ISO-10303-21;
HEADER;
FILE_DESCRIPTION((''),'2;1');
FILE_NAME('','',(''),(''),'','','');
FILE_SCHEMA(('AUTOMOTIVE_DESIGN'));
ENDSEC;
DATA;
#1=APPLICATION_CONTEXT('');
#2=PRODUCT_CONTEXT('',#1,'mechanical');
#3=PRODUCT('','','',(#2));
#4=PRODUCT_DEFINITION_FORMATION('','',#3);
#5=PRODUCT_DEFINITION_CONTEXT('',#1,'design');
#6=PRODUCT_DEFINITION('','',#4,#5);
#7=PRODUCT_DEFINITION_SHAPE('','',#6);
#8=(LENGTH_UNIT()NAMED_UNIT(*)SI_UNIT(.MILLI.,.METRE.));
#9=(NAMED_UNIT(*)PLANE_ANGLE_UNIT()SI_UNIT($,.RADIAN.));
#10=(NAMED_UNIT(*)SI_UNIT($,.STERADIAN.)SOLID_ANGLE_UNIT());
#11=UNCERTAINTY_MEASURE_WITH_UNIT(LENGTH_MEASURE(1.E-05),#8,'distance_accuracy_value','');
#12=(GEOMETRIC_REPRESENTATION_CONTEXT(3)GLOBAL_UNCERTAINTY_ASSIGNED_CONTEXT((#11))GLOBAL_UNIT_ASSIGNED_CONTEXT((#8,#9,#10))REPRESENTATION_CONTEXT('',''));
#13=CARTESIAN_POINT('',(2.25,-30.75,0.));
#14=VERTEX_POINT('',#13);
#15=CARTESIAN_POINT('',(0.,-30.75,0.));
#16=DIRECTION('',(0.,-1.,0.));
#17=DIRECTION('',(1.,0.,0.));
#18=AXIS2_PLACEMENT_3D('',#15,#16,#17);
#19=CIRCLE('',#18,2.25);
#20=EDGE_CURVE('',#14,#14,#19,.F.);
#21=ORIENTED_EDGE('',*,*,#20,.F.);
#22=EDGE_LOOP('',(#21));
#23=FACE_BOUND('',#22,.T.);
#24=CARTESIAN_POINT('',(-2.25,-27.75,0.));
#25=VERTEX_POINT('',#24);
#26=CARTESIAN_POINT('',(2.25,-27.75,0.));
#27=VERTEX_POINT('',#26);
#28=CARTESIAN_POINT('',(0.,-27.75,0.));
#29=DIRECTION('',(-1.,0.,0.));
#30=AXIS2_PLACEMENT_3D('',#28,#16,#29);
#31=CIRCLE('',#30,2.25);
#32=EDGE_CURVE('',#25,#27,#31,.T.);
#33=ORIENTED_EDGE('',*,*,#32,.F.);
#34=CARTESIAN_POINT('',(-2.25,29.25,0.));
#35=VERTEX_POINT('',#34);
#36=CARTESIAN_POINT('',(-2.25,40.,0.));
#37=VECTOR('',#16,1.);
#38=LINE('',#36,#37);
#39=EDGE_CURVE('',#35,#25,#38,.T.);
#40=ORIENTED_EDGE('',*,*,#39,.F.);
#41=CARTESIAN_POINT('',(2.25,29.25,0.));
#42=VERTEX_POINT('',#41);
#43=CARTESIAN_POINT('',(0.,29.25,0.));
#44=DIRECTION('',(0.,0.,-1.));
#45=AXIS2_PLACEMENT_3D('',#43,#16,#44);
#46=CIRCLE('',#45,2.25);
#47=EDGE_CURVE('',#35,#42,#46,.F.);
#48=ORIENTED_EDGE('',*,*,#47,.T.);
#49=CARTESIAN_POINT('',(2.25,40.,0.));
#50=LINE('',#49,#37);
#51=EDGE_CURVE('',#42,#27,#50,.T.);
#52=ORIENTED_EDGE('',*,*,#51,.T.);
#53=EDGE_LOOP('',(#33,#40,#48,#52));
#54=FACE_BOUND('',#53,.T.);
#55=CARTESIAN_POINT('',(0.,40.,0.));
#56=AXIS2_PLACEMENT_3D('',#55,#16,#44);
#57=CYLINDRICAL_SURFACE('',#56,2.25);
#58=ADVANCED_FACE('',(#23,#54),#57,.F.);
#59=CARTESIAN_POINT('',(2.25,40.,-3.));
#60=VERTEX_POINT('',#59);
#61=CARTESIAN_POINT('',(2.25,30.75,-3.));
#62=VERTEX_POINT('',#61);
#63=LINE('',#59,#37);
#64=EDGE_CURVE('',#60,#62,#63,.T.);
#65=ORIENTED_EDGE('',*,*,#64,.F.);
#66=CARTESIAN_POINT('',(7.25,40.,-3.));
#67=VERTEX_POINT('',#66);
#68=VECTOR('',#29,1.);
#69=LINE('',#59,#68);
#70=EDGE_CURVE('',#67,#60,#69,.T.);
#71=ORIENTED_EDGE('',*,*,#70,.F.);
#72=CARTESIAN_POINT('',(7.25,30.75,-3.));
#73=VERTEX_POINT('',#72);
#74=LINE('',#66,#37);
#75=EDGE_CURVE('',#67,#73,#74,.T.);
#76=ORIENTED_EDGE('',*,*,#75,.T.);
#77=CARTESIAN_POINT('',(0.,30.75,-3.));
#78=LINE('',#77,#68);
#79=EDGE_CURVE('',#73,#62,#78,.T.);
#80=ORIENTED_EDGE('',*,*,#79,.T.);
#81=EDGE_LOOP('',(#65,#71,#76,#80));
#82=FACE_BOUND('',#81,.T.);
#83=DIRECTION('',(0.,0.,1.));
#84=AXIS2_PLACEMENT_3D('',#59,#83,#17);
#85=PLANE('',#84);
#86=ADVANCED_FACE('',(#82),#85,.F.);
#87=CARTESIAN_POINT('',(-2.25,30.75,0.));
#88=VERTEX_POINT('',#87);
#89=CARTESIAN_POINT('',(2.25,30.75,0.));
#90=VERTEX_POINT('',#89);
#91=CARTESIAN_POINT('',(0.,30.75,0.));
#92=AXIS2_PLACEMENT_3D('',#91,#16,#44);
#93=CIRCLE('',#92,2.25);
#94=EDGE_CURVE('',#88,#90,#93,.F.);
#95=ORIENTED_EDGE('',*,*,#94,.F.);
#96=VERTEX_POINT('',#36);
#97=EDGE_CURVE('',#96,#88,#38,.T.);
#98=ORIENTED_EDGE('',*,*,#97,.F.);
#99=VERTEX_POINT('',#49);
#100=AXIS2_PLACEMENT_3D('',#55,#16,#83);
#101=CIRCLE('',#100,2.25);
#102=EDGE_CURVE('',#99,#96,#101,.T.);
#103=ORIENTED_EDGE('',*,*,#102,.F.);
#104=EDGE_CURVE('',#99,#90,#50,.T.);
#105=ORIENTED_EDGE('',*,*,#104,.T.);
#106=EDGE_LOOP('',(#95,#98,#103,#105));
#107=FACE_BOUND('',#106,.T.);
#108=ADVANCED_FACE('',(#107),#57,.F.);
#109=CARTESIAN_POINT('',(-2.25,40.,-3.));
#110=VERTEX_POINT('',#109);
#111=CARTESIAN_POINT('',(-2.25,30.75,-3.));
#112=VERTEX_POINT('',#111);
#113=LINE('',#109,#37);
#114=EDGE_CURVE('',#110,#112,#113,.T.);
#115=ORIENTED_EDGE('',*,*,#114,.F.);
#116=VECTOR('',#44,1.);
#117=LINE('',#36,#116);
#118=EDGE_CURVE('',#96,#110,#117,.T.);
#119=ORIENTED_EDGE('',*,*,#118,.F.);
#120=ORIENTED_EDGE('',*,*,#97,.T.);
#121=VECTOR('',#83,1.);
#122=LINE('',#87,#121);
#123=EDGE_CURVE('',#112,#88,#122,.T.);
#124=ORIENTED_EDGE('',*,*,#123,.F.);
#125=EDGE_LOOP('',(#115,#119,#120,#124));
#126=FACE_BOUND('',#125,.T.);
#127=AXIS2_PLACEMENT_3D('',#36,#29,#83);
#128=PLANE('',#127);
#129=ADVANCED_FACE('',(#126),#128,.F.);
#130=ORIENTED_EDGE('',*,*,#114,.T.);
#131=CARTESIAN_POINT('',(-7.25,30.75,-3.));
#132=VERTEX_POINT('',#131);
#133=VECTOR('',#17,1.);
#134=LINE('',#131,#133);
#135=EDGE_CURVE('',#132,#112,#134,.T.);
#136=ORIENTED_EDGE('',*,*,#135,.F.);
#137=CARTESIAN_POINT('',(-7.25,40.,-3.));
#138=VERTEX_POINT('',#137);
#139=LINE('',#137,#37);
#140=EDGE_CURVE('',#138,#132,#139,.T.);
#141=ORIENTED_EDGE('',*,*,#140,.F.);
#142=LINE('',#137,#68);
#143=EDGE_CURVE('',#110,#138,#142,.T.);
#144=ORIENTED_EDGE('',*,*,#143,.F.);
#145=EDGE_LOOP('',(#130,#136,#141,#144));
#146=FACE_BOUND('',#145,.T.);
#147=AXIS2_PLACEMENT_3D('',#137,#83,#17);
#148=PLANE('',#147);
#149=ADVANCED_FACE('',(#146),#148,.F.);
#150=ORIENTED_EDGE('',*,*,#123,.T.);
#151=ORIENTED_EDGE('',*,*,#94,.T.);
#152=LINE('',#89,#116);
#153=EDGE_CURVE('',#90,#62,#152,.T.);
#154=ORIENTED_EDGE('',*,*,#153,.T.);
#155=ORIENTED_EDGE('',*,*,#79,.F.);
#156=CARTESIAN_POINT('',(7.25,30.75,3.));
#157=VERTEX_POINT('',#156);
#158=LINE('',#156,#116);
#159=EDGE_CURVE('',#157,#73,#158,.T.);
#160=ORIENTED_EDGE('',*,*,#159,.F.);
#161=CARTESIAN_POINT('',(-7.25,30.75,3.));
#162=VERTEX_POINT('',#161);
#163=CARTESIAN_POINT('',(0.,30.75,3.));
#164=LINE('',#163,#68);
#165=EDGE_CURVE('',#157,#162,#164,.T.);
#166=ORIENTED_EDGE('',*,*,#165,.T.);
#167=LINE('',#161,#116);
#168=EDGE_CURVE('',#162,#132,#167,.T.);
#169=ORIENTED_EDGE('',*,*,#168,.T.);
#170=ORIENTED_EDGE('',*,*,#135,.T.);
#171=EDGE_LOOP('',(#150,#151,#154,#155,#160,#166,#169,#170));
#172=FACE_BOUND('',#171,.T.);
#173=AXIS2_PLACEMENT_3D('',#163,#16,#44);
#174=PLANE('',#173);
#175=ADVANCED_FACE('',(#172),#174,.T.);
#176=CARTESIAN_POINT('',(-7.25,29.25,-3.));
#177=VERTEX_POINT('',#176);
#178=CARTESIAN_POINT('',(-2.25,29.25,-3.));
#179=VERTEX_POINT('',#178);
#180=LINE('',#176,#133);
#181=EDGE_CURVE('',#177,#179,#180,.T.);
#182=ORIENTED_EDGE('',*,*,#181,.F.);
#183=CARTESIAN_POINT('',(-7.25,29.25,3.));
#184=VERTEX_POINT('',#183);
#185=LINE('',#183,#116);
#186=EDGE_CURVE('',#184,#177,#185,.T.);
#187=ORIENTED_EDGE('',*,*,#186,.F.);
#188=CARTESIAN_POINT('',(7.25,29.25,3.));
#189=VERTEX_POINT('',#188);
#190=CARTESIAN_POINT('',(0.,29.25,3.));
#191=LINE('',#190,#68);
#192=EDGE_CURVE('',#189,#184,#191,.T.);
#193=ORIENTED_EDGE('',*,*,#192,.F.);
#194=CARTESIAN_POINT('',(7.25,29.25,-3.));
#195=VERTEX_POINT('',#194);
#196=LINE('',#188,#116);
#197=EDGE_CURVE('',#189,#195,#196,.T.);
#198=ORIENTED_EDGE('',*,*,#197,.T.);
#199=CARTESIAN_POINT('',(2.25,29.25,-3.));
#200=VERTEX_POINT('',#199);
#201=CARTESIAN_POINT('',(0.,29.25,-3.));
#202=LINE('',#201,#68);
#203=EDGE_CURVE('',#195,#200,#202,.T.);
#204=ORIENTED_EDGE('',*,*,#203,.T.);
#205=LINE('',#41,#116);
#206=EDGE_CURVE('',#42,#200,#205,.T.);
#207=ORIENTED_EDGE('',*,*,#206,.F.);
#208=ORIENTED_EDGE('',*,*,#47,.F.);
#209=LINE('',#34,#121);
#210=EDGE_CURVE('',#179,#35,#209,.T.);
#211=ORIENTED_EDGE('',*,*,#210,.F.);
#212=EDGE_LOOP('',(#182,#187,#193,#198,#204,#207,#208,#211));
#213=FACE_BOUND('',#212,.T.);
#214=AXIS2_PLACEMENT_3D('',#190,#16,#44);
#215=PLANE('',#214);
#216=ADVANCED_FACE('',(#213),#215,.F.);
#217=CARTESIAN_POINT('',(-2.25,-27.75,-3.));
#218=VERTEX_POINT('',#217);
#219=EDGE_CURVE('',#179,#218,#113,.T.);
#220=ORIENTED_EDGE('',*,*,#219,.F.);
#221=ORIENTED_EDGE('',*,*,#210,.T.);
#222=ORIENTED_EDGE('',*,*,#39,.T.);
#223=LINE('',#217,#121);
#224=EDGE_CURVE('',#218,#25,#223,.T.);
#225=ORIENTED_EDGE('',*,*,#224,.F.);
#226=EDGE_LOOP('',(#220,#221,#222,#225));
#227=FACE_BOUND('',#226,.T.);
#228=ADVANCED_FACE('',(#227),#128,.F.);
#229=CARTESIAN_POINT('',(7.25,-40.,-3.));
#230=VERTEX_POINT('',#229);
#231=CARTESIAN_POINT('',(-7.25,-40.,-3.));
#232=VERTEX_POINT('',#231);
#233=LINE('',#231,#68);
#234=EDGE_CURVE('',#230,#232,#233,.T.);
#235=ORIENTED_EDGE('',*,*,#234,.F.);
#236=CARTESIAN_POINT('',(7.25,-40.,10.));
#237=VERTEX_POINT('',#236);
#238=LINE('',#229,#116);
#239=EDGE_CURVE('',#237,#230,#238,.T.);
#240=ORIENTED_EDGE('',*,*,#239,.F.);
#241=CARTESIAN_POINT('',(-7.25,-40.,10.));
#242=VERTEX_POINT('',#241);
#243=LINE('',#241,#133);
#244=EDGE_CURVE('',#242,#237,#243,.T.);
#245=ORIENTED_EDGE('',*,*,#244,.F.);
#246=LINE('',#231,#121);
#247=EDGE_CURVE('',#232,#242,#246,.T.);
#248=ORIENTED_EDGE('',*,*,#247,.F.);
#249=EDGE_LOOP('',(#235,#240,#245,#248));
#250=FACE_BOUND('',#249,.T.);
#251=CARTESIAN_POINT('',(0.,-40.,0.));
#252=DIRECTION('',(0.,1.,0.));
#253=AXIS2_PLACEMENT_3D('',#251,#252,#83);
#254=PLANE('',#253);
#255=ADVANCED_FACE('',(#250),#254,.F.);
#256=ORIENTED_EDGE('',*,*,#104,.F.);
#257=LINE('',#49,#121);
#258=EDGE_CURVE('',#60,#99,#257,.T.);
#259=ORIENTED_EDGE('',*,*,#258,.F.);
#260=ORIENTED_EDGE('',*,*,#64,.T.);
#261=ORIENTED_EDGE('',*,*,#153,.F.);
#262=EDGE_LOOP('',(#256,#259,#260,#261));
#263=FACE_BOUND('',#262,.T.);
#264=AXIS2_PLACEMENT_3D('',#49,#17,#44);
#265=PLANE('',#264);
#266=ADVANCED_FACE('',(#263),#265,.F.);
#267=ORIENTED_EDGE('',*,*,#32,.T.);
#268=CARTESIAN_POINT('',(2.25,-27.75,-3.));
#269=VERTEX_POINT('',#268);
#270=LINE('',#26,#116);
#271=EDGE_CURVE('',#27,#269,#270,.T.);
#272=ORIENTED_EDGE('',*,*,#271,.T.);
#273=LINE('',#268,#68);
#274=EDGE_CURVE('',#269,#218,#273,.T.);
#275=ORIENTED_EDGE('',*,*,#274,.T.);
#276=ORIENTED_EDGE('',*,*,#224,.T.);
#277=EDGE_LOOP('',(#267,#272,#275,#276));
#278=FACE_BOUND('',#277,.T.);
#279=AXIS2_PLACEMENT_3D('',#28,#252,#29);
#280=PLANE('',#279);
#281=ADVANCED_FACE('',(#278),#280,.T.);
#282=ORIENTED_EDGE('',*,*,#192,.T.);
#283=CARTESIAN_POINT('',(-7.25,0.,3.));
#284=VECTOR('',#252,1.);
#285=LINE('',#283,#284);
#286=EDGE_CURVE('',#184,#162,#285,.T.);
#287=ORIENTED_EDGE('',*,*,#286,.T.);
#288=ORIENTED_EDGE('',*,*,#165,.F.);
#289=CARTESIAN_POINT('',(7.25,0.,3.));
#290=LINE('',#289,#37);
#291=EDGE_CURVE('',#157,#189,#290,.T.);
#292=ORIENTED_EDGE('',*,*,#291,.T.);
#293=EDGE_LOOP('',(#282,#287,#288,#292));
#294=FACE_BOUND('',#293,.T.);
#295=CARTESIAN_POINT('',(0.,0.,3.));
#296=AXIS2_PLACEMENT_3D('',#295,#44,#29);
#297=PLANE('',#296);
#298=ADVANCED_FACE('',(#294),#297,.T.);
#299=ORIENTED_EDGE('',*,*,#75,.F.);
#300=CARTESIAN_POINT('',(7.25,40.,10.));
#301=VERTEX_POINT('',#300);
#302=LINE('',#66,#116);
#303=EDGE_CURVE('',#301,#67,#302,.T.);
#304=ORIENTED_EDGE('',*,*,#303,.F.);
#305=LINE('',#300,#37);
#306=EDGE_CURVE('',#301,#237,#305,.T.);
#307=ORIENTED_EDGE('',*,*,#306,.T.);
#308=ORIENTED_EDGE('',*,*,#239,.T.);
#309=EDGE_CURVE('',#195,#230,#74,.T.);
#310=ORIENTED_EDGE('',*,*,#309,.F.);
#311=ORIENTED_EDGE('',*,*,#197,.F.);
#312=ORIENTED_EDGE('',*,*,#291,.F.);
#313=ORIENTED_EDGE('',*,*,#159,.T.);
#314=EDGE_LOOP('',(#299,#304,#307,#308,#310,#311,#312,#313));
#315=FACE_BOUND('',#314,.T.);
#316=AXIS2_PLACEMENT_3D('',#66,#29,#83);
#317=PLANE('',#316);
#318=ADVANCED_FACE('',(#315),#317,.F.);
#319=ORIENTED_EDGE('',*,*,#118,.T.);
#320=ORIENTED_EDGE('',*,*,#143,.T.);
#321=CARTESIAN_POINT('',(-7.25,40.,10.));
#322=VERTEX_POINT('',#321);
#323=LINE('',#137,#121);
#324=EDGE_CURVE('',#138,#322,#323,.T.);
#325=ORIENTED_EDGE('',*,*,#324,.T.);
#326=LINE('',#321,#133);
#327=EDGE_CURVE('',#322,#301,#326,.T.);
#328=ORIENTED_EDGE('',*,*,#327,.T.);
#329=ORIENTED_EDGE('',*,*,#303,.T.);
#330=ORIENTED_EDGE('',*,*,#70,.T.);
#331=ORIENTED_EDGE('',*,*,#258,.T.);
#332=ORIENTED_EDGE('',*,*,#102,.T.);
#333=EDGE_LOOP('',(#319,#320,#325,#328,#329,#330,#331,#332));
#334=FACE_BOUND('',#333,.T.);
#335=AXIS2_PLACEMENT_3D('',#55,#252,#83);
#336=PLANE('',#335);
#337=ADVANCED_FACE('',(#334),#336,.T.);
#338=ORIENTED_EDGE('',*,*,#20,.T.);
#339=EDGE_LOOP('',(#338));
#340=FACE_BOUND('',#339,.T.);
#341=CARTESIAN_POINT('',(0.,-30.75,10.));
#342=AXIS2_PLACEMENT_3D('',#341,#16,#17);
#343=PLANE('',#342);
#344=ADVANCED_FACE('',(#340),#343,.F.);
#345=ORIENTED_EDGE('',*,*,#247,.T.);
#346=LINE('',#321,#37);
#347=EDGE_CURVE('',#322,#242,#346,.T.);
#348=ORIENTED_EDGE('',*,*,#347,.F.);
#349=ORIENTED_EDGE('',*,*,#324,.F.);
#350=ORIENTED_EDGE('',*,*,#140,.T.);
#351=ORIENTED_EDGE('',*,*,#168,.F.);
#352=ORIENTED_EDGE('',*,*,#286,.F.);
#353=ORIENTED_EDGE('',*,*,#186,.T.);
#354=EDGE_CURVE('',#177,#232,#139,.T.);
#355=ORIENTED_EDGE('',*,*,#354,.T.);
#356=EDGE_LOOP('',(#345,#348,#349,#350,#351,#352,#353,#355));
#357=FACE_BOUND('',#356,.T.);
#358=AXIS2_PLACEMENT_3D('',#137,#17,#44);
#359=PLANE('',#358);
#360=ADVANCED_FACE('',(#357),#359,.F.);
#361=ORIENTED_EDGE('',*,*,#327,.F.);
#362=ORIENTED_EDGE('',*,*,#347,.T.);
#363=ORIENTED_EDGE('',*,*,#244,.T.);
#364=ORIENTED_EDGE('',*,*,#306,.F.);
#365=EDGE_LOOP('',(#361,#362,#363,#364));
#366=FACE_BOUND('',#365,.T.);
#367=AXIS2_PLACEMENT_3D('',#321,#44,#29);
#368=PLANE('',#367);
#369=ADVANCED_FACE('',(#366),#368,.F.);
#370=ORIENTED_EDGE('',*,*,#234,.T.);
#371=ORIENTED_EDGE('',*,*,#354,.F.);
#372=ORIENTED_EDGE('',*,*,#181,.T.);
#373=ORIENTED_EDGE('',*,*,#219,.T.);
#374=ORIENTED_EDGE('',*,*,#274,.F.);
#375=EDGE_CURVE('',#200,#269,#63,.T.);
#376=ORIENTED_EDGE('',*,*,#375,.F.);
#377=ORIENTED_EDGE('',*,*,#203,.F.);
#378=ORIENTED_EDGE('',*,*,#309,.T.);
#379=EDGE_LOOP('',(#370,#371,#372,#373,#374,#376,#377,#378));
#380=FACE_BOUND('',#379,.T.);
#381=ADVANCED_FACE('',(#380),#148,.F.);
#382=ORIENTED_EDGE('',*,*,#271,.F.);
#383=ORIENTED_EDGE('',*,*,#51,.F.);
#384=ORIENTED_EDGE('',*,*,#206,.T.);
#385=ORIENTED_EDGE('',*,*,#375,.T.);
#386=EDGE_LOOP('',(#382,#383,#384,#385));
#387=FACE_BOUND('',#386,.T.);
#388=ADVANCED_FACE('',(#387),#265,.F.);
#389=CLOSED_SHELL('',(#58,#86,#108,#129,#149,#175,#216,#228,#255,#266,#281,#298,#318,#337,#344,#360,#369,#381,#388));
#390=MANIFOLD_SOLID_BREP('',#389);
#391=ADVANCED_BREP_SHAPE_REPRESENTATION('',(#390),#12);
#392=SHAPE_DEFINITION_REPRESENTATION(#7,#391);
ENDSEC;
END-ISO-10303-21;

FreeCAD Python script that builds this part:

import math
import FreeCAD as App
import Part
import Sketcher
from FreeCAD import Vector


def add_polygon(sketch, points):
    """Adds a closed chain of lines whose ends are joined by coincident constraints."""
    first, n = sketch.GeometryCount, len(points)
    for a, b in zip(points, points[1:] + points[:1]):
        sketch.addGeometry(Part.LineSegment(App.Vector(*a, 0), App.Vector(*b, 0)), False)
    for i in range(n):
        sketch.addConstraint(Sketcher.Constraint("Coincident", first + i, 2, first + (i + 1) % n, 1))

doc = App.newDocument("Part")
body = doc.addObject("PartDesign::Body", "Body")

sketch1 = body.newObject("Sketcher::SketchObject", "Sketch")
sketch1.AttachmentSupport = (doc.getObject("XZ_Plane"), [""])
sketch1.MapMode = "FlatFace"
sketch1.addGeometry([
    Part.LineSegment(Vector(-2.25, -3, 0), Vector(-7.25, -3, 0)),
    Part.LineSegment(Vector(-7.25, -3, 0), Vector(-7.25, 10, 0)),
    Part.LineSegment(Vector(-7.25, 10, 0), Vector(7.25, 10, 0)),
    Part.LineSegment(Vector(7.25, 10, 0), Vector(7.25, -3, 0)),
    Part.LineSegment(Vector(7.25, -3, 0), Vector(2.25, -3, 0)),
    Part.LineSegment(Vector(2.25, -3, 0), Vector(2.25, 0, 0)),
    Part.ArcOfCircle(Part.Circle(Vector(0, 0, 0), Vector(0, 0, 1), 2.25), math.radians(0), math.radians(180)),
    Part.LineSegment(Vector(-2.25, 0, 0), Vector(-2.25, -3, 0)),
], False)
sketch1.addConstraint([
    Sketcher.Constraint("Coincident", 0, 2, 1, 1),
    Sketcher.Constraint("Coincident", 1, 2, 2, 1),
    Sketcher.Constraint("Coincident", 2, 2, 3, 1),
    Sketcher.Constraint("Coincident", 3, 2, 4, 1),
    Sketcher.Constraint("Coincident", 4, 2, 5, 1),
    Sketcher.Constraint("Tangent", 5, 2, 6, 1),
    Sketcher.Constraint("Tangent", 6, 2, 7, 1),
    Sketcher.Constraint("Coincident", 7, 2, 0, 1),
    Sketcher.Constraint("Horizontal", 0),
    Sketcher.Constraint("Vertical", 1),
    Sketcher.Constraint("Horizontal", 2),
    Sketcher.Constraint("Vertical", 3),
    Sketcher.Constraint("Horizontal", 4),
    Sketcher.Constraint("Vertical", 5),
    Sketcher.Constraint("Vertical", 7),
    Sketcher.Constraint("Coincident", 6, 3, -1, 1),
    Sketcher.Constraint("Symmetric", 0, 2, 3, 2, -2),
    Sketcher.Constraint("DistanceX", 0, 2, 0, 1, 5.0),
    Sketcher.Constraint("DistanceY", 1, 1, 1, 2, 13.0),
    Sketcher.Constraint("DistanceY", 5, 1, 5, 2, 3.0),
    Sketcher.Constraint("Radius", 6, 2.25),
])
pad1 = body.newObject("PartDesign::Pad", "Pad")
pad1.Profile = sketch1
pad1.Length = 80
pad1.Midplane = True

sketch2 = body.newObject("Sketcher::SketchObject", "Sketch001")
sketch2.AttachmentSupport = (doc.getObject("XY_Plane"), [""])
sketch2.MapMode = "FlatFace"
sketch2.AttachmentOffset = App.Placement(Vector(0, 0, -3), App.Rotation())
add_polygon(sketch2, [(-7.25, 29.25), (-7.25, 30.75), (7.25, 30.75), (7.25, 29.25)])
sketch2.addConstraint([
    Sketcher.Constraint("Vertical", 0),
    Sketcher.Constraint("Horizontal", 1),
    Sketcher.Constraint("Vertical", 2),
    Sketcher.Constraint("Horizontal", 3),
    Sketcher.Constraint("DistanceX", 1, 1, 1, 2, 14.5),
    Sketcher.Constraint("DistanceY", 0, 1, 0, 2, 1.5),
    Sketcher.Constraint("DistanceX", 0, 2, -1, 1, 7.25),
    Sketcher.Constraint("DistanceY", -1, 1, 0, 2, 30.75),
])
pocket1 = body.newObject("PartDesign::Pocket", "Pocket")
pocket1.Profile = sketch2
pocket1.Length = 6
pocket1.Reversed = True

sketch3 = body.newObject("Sketcher::SketchObject", "Sketch002")
sketch3.AttachmentSupport = (doc.getObject("XY_Plane"), [""])
sketch3.MapMode = "FlatFace"
sketch3.AttachmentOffset = App.Placement(Vector(0, 0, -3), App.Rotation())
add_polygon(sketch3, [(-7.25, -40), (-7.25, -30.75), (7.25, -30.75), (7.25, -40)])
sketch3.addConstraint([
    Sketcher.Constraint("Vertical", 0),
    Sketcher.Constraint("Horizontal", 1),
    Sketcher.Constraint("Vertical", 2),
    Sketcher.Constraint("Horizontal", 3),
    Sketcher.Constraint("DistanceX", 1, 1, 1, 2, 14.5),
    Sketcher.Constraint("DistanceY", 2, 2, -1, 1, 40.0),
    Sketcher.Constraint("DistanceY", 0, 1, 0, 2, 9.25),
    Sketcher.Constraint("DistanceX", 0, 2, -1, 1, 7.25),
])
pad2 = body.newObject("PartDesign::Pad", "Pad001")
pad2.Profile = sketch3
pad2.Type = "UpToLast"

sketch4 = body.newObject("Sketcher::SketchObject", "Sketch003")
sketch4.AttachmentSupport = (doc.getObject("XZ_Plane"), [""])
sketch4.MapMode = "FlatFace"
sketch4.AttachmentOffset = App.Placement(Vector(0, 0, 30.75), App.Rotation())
sketch4.addGeometry([
    Part.LineSegment(Vector(2.25, 0, 0), Vector(2.25, -3, 0)),
    Part.LineSegment(Vector(2.25, -3, 0), Vector(-2.25, -3, 0)),
    Part.LineSegment(Vector(-2.25, -3, 0), Vector(-2.25, 0, 0)),
    Part.ArcOfCircle(Part.Circle(Vector(0, 0, 0), Vector(0, 0, 1), 2.25), math.radians(180), math.radians(360)),
], False)
sketch4.addConstraint([
    Sketcher.Constraint("Coincident", 0, 2, 1, 1),
    Sketcher.Constraint("Coincident", 1, 2, 2, 1),
    Sketcher.Constraint("Tangent", 2, 2, 3, 1),
    Sketcher.Constraint("Tangent", 3, 2, 0, 1),
    Sketcher.Constraint("Vertical", 0),
    Sketcher.Constraint("Horizontal", 1),
    Sketcher.Constraint("Vertical", 2),
    Sketcher.Constraint("Coincident", 3, 3, -1, 1),
    Sketcher.Constraint("DistanceY", 0, 2, 0, 1, 3.0),
    Sketcher.Constraint("Radius", 3, 2.25),
])
pad3 = body.newObject("PartDesign::Pad", "Pad002")
pad3.Profile = sketch4
pad3.Length = 3
pad3.Reversed = True

doc.recompute()
